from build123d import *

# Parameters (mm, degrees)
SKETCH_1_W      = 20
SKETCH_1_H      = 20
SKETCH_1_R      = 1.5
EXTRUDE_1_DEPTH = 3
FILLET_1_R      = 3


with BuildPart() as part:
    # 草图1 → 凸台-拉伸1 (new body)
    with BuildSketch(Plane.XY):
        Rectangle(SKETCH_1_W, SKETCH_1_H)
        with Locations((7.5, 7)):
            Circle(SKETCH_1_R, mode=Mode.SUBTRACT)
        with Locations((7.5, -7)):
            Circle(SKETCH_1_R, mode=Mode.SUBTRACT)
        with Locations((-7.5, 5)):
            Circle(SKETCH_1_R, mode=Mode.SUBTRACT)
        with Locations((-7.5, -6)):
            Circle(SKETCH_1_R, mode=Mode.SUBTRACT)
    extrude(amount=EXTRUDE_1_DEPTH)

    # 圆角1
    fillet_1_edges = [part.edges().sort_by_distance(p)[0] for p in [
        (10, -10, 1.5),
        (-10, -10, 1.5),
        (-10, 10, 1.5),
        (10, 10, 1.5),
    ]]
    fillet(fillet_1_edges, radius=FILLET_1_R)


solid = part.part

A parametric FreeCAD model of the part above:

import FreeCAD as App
import Part
import Sketcher

V = App.Vector
Q = App.Units.Quantity


def edges_at(feature, points):
    """Names of the edges that pass closest to the given points."""
    edges = feature.Shape.Edges
    near = lambda p: min(range(len(edges)), key=lambda i: edges[i].distToShape(Part.Vertex(*p))[0])
    return sorted({f"Edge{near(p) + 1}" for p in points})


def add_polygon(sketch, points):
    """Adds a closed chain of lines whose ends are joined by coincident constraints."""
    first, n = sketch.GeometryCount, len(points)
    for a, b in zip(points, points[1:] + points[:1]):
        sketch.addGeometry(Part.LineSegment(App.Vector(*a, 0), App.Vector(*b, 0)), False)
    for i in range(n):
        sketch.addConstraint(Sketcher.Constraint("Coincident", first + i, 2, first + (i + 1) % n, 1))

doc = App.newDocument("Part")
body = doc.addObject("PartDesign::Body", "Body")

# Sketch on XY plane
sketch1 = doc.addObject("Sketcher::SketchObject", "Sketch")
body.addObject(sketch1)
sketch1.AttachmentSupport = (doc.XY_Plane, [""])
sketch1.MapMode = "FlatFace"
add_polygon(sketch1, [(-10, 10), (-10, -10), (10, -10), (10, 10)])  # lines 0-3
sketch1.addGeometry(Part.Circle(V(-7.5, -6, 0), V(0, 0, 1), 1.5), False)  # 4
sketch1.addGeometry(Part.Circle(V(7.5, -7, 0), V(0, 0, 1), 1.5), False)  # 5
sketch1.addGeometry(Part.Circle(V(-7.5, 5, 0), V(0, 0, 1), 1.5), False)  # 6
sketch1.addGeometry(Part.Circle(V(7.5, 7, 0), V(0, 0, 1), 1.5), False)  # 7
sketch1.addConstraint([
    Sketcher.Constraint("Vertical", 0),
    Sketcher.Constraint("Horizontal", 1),
    Sketcher.Constraint("Vertical", 2),
    Sketcher.Constraint("Horizontal", 3),
    Sketcher.Constraint("Equal", 4, 5),
    Sketcher.Constraint("Equal", 5, 6),
    Sketcher.Constraint("Equal", 6, 7),
    Sketcher.Constraint("Symmetric", 0, 2, 2, 2, -1, 1),
    Sketcher.Constraint("Symmetric", 5, 3, 7, 3, -1),
    Sketcher.Constraint("Vertical", 4, 3, 6, 3),
    Sketcher.Constraint("Equal", 3, 0),
    Sketcher.Constraint("Diameter", 4, Q("3 mm")),
    Sketcher.Constraint("DistanceX", 1, 1, 1, 2, Q("20 mm")),
    Sketcher.Constraint("DistanceY", 4, 3, -1, 1, Q("6 mm")),
    Sketcher.Constraint("DistanceY", 5, 3, -1, 1, Q("7 mm")),
    Sketcher.Constraint("DistanceY", -1, 1, 6, 3, Q("5 mm")),
    Sketcher.Constraint("DistanceX", 4, 3, 5, 3, Q("15 mm")),
    Sketcher.Constraint("DistanceX", 4, 3, -1, 1, Q("7.5 mm")),
])
pad1 = doc.addObject("PartDesign::Pad", "Pad")
body.addObject(pad1)
pad1.Profile = sketch1
pad1.Length = 3
doc.recompute()

fillet = doc.addObject("PartDesign::Fillet", "Fillet")
body.addObject(fillet)
fillet.Base = (pad1, edges_at(pad1, [
    (10, -10, 1.5),
    (-10, -10, 1.5),
    (-10, 10, 1.5),
    (10, 10, 1.5),
]))
fillet.Radius = 3

doc.recompute()
